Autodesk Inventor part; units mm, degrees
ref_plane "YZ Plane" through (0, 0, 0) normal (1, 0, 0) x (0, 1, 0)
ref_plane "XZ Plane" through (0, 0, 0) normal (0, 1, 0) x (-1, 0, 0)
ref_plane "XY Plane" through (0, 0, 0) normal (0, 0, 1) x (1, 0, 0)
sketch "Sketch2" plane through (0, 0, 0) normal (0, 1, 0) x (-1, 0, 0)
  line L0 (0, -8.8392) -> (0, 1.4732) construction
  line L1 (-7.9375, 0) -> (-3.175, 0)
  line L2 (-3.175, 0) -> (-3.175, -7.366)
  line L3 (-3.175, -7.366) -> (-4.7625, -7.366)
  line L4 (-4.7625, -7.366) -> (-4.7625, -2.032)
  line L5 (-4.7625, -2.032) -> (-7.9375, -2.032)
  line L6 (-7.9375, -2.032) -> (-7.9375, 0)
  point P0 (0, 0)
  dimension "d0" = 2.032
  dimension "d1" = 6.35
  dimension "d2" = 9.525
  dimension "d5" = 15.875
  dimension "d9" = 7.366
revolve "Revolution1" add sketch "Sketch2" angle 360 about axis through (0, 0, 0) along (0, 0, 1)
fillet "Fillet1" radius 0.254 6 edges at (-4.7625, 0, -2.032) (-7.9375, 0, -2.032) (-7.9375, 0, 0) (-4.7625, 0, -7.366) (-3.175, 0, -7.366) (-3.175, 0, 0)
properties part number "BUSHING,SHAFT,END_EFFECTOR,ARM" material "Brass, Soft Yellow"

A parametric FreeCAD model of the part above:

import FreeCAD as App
import Part
import Sketcher

V = App.Vector
Q = App.Units.Quantity


def edges_at(feature, points):
    """Names of the edges that pass closest to the given points."""
    edges = feature.Shape.Edges
    near = lambda p: min(range(len(edges)), key=lambda i: edges[i].distToShape(Part.Vertex(*p))[0])
    return sorted({f"Edge{near(p) + 1}" for p in points})


def add_polygon(sketch, points):
    """Adds a closed chain of lines whose ends are joined by coincident constraints."""
    first, n = sketch.GeometryCount, len(points)
    for a, b in zip(points, points[1:] + points[:1]):
        sketch.addGeometry(Part.LineSegment(App.Vector(*a, 0), App.Vector(*b, 0)), False)
    for i in range(n):
        sketch.addConstraint(Sketcher.Constraint("Coincident", first + i, 2, first + (i + 1) % n, 1))

doc = App.newDocument("Part")
body = doc.addObject("PartDesign::Body", "Body")

# Sketch on XZ plane
sketch1 = doc.addObject("Sketcher::SketchObject", "Sketch")
body.addObject(sketch1)
sketch1.AttachmentSupport = (doc.XZ_Plane, [""])
sketch1.MapMode = "FlatFace"
add_polygon(sketch1, [(3.2, 0), (7.9, 0), (7.9, -2), (4.8, -2), (4.8, -7.4), (3.2, -7.4)])  # lines 0-5
sketch1.addConstraint([
    Sketcher.Constraint("Horizontal", 0),
    Sketcher.Constraint("Vertical", 1),
    Sketcher.Constraint("Horizontal", 2),
    Sketcher.Constraint("Vertical", 3),
    Sketcher.Constraint("Horizontal", 4),
    Sketcher.Constraint("Vertical", 5),
    Sketcher.Constraint("PointOnObject", 0, 2, -1),
    Sketcher.Constraint("DistanceY", 1, 2, 1, 1, Q("0.08 in")),
    Sketcher.Constraint("DistanceY", 5, 1, 5, 2, Q("0.29 in")),
    Sketcher.Constraint("DistanceX", 0, 1, 0, 2, Q("0.1875 in")),
    Sketcher.Constraint("DistanceX", 2, 2, 2, 1, Q("0.125 in")),
    Sketcher.Constraint("DistanceX", -1, 1, 0, 2, Q("0.3125 in")),
])
revolution = doc.addObject("PartDesign::Revolution", "Revolution")
body.addObject(revolution)
revolution.Profile = sketch1
revolution.ReferenceAxis = (sketch1, ["V_Axis"])
revolution.Angle = 360
doc.recompute()

fillet = doc.addObject("PartDesign::Fillet", "Fillet")
body.addObject(fillet)
fillet.Base = (revolution, edges_at(revolution, [
    (-4.763, 0, -2.032),
    (-7.938, 0, -2.032),
    (-7.938, 0, 0),
    (-4.763, 0, -7.366),
    (-3.175, 0, -7.366),
    (-3.175, 0, 0),
]))
fillet.Radius = Q("0.01 in")

doc.recompute()
